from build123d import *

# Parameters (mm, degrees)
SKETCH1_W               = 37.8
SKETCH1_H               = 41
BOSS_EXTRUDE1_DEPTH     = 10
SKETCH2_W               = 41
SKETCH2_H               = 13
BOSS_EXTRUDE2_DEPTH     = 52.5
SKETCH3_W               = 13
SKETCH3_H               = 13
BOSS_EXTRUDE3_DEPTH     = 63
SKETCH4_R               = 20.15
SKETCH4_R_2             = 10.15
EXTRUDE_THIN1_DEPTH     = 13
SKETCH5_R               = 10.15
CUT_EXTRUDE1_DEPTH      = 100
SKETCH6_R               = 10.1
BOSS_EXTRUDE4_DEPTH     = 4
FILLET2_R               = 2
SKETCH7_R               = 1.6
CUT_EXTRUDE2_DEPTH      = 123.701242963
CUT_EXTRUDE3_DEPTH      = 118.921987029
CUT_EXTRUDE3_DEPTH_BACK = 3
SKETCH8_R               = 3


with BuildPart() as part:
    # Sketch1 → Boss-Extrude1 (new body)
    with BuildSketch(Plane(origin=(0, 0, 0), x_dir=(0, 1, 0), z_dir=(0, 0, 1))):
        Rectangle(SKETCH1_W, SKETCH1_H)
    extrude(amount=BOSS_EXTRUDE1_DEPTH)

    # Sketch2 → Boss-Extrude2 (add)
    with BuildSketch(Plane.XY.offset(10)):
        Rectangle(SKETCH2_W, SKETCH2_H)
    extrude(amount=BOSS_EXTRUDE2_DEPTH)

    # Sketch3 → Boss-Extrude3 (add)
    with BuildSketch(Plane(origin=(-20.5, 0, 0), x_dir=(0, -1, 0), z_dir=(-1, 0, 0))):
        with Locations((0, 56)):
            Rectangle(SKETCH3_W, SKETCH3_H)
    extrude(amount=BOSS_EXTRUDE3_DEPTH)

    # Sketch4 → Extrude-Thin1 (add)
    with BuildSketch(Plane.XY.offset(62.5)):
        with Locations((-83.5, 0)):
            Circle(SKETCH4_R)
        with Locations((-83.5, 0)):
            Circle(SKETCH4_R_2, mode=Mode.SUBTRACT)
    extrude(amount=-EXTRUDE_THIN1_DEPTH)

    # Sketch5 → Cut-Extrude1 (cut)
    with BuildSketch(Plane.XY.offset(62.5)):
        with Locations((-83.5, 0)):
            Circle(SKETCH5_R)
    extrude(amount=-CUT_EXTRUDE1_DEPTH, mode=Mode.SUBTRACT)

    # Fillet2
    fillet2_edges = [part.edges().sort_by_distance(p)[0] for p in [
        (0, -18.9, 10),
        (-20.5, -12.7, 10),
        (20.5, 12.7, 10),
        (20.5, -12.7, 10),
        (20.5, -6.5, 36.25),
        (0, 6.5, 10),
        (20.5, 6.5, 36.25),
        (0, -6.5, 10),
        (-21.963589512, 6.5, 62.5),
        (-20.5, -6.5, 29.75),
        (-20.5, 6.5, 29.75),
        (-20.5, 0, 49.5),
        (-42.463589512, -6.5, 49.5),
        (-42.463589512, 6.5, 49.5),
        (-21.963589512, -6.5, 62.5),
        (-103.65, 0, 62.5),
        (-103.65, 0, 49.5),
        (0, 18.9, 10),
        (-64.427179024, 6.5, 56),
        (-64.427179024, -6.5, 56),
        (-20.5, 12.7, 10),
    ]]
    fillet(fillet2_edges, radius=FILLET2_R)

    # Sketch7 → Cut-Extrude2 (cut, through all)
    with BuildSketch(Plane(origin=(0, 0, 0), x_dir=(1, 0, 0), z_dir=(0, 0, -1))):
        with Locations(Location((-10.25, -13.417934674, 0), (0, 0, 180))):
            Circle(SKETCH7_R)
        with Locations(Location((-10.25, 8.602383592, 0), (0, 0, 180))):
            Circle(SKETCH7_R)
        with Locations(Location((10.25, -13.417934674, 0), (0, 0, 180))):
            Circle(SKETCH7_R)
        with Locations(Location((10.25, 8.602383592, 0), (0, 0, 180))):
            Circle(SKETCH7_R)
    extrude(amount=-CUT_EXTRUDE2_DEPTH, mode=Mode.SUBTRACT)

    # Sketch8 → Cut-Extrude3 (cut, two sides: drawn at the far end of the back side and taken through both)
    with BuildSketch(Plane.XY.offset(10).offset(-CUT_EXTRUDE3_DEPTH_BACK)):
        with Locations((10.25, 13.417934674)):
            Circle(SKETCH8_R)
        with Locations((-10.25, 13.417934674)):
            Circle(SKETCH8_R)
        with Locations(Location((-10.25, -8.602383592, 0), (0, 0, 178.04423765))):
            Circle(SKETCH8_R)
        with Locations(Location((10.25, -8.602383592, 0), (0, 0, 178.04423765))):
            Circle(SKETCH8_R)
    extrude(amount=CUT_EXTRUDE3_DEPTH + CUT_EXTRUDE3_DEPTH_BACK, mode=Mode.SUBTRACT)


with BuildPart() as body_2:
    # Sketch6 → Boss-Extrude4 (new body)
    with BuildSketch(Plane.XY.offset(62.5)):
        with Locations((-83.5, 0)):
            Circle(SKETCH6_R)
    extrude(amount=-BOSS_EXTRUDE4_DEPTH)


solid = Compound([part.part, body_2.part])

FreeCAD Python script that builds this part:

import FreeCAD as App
import Part
import Sketcher

V = App.Vector


def edges_at(feature, points):
    """Names of the edges that pass closest to the given points."""
    edges = feature.Shape.Edges
    near = lambda p: min(range(len(edges)), key=lambda i: edges[i].distToShape(Part.Vertex(*p))[0])
    return sorted({f"Edge{near(p) + 1}" for p in points})


def add_polygon(sketch, points):
    """Adds a closed chain of lines whose ends are joined by coincident constraints."""
    first, n = sketch.GeometryCount, len(points)
    for a, b in zip(points, points[1:] + points[:1]):
        sketch.addGeometry(Part.LineSegment(App.Vector(*a, 0), App.Vector(*b, 0)), False)
    for i in range(n):
        sketch.addConstraint(Sketcher.Constraint("Coincident", first + i, 2, first + (i + 1) % n, 1))

doc = App.newDocument("Part")
body = doc.addObject("PartDesign::Body", "Body")

# Sketch on XY plane
sketch1 = body.newObject("Sketcher::SketchObject", "Sketch")
sketch1.AttachmentSupport = (doc.getObject("XY_Plane"), [""])
sketch1.MapMode = "FlatFace"
add_polygon(sketch1, [(-20, -19), (20, -19), (20, 19), (-20, 19)])  # lines 0-3
sketch1.addConstraint([
    Sketcher.Constraint("Horizontal", 0),
    Sketcher.Constraint("Vertical", 1),
    Sketcher.Constraint("Horizontal", 2),
    Sketcher.Constraint("Vertical", 3),
    Sketcher.Constraint("Symmetric", 0, 2, 2, 2, -1, 1),
    Sketcher.Constraint("DistanceX", 0, 1, 0, 2, 41.0),
    Sketcher.Constraint("DistanceY", 1, 1, 1, 2, 37.8),
])
pad1 = body.newObject("PartDesign::Pad", "Pad")
pad1.Profile = sketch1
pad1.Length = 10

# Sketch on XY plane
sketch2 = body.newObject("Sketcher::SketchObject", "Sketch001")
sketch2.AttachmentSupport = (doc.getObject("XY_Plane"), [""])
sketch2.MapMode = "FlatFace"
sketch2.AttachmentOffset = App.Placement(V(0, 0, 10), App.Rotation())
add_polygon(sketch2, [(-20, 6), (-20, -6), (20, -6), (20, 6)])  # lines 0-3
sketch2.addConstraint([
    Sketcher.Constraint("Vertical", 0),
    Sketcher.Constraint("Horizontal", 1),
    Sketcher.Constraint("Vertical", 2),
    Sketcher.Constraint("Horizontal", 3),
    Sketcher.Constraint("Symmetric", 0, 2, 2, 2, -1, 1),
    Sketcher.Constraint("DistanceX", 1, 1, 1, 2, 41.0),
    Sketcher.Constraint("DistanceY", 0, 2, 0, 1, 13.0),
])
pad2 = body.newObject("PartDesign::Pad", "Pad001")
pad2.Profile = sketch2
pad2.Length = 52.5

# Sketch on YZ plane
sketch3 = body.newObject("Sketcher::SketchObject", "Sketch002")
sketch3.AttachmentSupport = (doc.getObject("YZ_Plane"), [""])
sketch3.MapMode = "FlatFace"
sketch3.AttachmentOffset = App.Placement(V(0, 0, -20.5), App.Rotation())
add_polygon(sketch3, [(6, 62), (6, 50), (-6, 50), (-6, 62)])  # lines 0-3
sketch3.addConstraint([
    Sketcher.Constraint("Vertical", 0),
    Sketcher.Constraint("Horizontal", 1),
    Sketcher.Constraint("Vertical", 2),
    Sketcher.Constraint("Horizontal", 3),
    Sketcher.Constraint("Equal", 3, 0),
    Sketcher.Constraint("DistanceX", 1, 2, 1, 1, 13.0),
    Sketcher.Constraint("DistanceX", -1, 1, 0, 2, 6.5),
    Sketcher.Constraint("DistanceY", -1, 1, 0, 2, 49.5),
])
pad3 = body.newObject("PartDesign::Pad", "Pad002")
pad3.Profile = sketch3
pad3.Length = 63
pad3.Reversed = True

# Sketch on XY plane
sketch4 = body.newObject("Sketcher::SketchObject", "Sketch003")
sketch4.AttachmentSupport = (doc.getObject("XY_Plane"), [""])
sketch4.MapMode = "FlatFace"
sketch4.AttachmentOffset = App.Placement(V(0, 0, 62.5), App.Rotation())
sketch4.addGeometry([
    Part.Circle(V(-84, 0, 0), V(0, 0, 1), 20),
    Part.Circle(V(-84, 0, 0), V(0, 0, 1), 10),
], False)
sketch4.addConstraint([
    Sketcher.Constraint("Coincident", 1, 3, 0, 3),
    Sketcher.Constraint("PointOnObject", 0, 3, -1),
    Sketcher.Constraint("Diameter", 0, 40.3),
    Sketcher.Constraint("Diameter", 1, 20.3),
    Sketcher.Constraint("DistanceX", 0, 3, -1, 1, 83.5),
])
pad4 = body.newObject("PartDesign::Pad", "Pad003")
pad4.Profile = sketch4
pad4.Length = 13
pad4.Reversed = True

# Sketch on XY plane
sketch5 = body.newObject("Sketcher::SketchObject", "Sketch004")
sketch5.AttachmentSupport = (doc.getObject("XY_Plane"), [""])
sketch5.MapMode = "FlatFace"
sketch5.AttachmentOffset = App.Placement(V(0, 0, 62.5), App.Rotation())
sketch5.addGeometry(Part.Circle(V(-84, 0, 0), V(0, 0, 1), 10), False)
sketch5.addConstraint([
    Sketcher.Constraint("PointOnObject", 0, 3, -1),
    Sketcher.Constraint("Diameter", 0, 20.3),
    Sketcher.Constraint("DistanceX", 0, 3, -1, 1, 83.5),
])
pocket1 = body.newObject("PartDesign::Pocket", "Pocket")
pocket1.Profile = sketch5
pocket1.Length = 100
doc.recompute()

fillet = body.newObject("PartDesign::Fillet", "Fillet")
fillet.Base = (pocket1, edges_at(pocket1, [
    (0, -18.9, 10),
    (-20.5, -12.7, 10),
    (20.5, 12.7, 10),
    (20.5, -12.7, 10),
    (20.5, -6.5, 36.25),
    (0, 6.5, 10),
    (20.5, 6.5, 36.25),
    (0, -6.5, 10),
    (-21.964, 6.5, 62.5),
    (-20.5, -6.5, 29.75),
    (-20.5, 6.5, 29.75),
    (-20.5, 0, 49.5),
    (-42.464, -6.5, 49.5),
    (-42.464, 6.5, 49.5),
    (-21.964, -6.5, 62.5),
    (-103.65, 0, 62.5),
    (-103.65, 0, 49.5),
    (0, 18.9, 10),
    (-64.427, 6.5, 56),
    (-64.427, -6.5, 56),
    (-20.5, 12.7, 10),
]))
fillet.Radius = 2

# Sketch on XY plane
sketch6 = body.newObject("Sketcher::SketchObject", "Sketch005")
sketch6.AttachmentSupport = (doc.getObject("XY_Plane"), [""])
sketch6.MapMode = "FlatFace"
sketch6.addGeometry([
    Part.Circle(V(-10.2, 13.4, 0), V(0, 0, 1), 1.6),
    Part.Circle(V(-10.2, -8.6, 0), V(0, 0, 1), 1.6),
    Part.Circle(V(10.2, 13.4, 0), V(0, 0, 1), 1.6),
    Part.Circle(V(10.2, -8.6, 0), V(0, 0, 1), 1.6),
], False)
sketch6.addConstraint([
    Sketcher.Constraint("Equal", 0, 1),
    Sketcher.Constraint("Equal", 1, 2),
    Sketcher.Constraint("Equal", 2, 3),
    Sketcher.Constraint("Symmetric", 0, 3, 2, 3, -2),
    Sketcher.Constraint("Symmetric", 1, 3, 3, 3, -2),
    Sketcher.Constraint("Vertical", 0, 3, 1, 3),
    Sketcher.Constraint("Diameter", 0, 3.2),
    Sketcher.Constraint("DistanceX", 0, 3, 2, 3, 20.5),
    Sketcher.Constraint("DistanceY", 1, 3, 0, 3, 22.020318),
    Sketcher.Constraint("DistanceY", -1, 1, 0, 3, 13.417935),
])
pocket2 = body.newObject("PartDesign::Pocket", "Pocket001")
pocket2.Profile = sketch6
pocket2.Type = "ThroughAll"
pocket2.Reversed = True

# Sketch on XY plane
sketch7 = body.newObject("Sketcher::SketchObject", "Sketch006")
sketch7.AttachmentSupport = (doc.getObject("XY_Plane"), [""])
sketch7.MapMode = "FlatFace"
sketch7.AttachmentOffset = App.Placement(V(0, 0, 10), App.Rotation())
sketch7.addGeometry([
    Part.Circle(V(10.2, 13.4, 0), V(0, 0, 1), 3),
    Part.Circle(V(-10.2, 13.4, 0), V(0, 0, 1), 3),
    Part.Circle(V(-10.2, -8.6, 0), V(0, 0, 1), 3),
    Part.Circle(V(10.2, -8.6, 0), V(0, 0, 1), 3),
], False)
sketch7.addConstraint([
    Sketcher.Constraint("Equal", 0, 1),
    Sketcher.Constraint("Equal", 1, 2),
    Sketcher.Constraint("Equal", 2, 3),
    Sketcher.Constraint("Symmetric", 0, 3, 1, 3, -2),
    Sketcher.Constraint("Symmetric", 2, 3, 3, 3, -2),
    Sketcher.Constraint("Vertical", 1, 3, 2, 3),
    Sketcher.Constraint("Diameter", 0, 6.0),
    Sketcher.Constraint("DistanceX", 1, 3, 0, 3, 20.5),
    Sketcher.Constraint("DistanceY", 2, 3, 1, 3, 22.020318),
    Sketcher.Constraint("DistanceY", -1, 1, 0, 3, 13.417935),
])
pocket3 = body.newObject("PartDesign::Pocket", "Pocket002")
pocket3.Profile = sketch7
pocket3.Type = "TwoLengths"
pocket3.Length = 118.921987
pocket3.Length2 = 3
pocket3.Reversed = True
body2 = doc.addObject("PartDesign::Body", "Body001")

# Sketch on XY plane
sketch8 = body2.newObject("Sketcher::SketchObject", "Sketch007")
sketch8.AttachmentSupport = (doc.getObject("XY_Plane001"), [""])
sketch8.MapMode = "FlatFace"
sketch8.AttachmentOffset = App.Placement(V(0, 0, 62.5), App.Rotation())
sketch8.addGeometry(Part.Circle(V(-84, 0, 0), V(0, 0, 1), 10), False)
sketch8.addConstraint([
    Sketcher.Constraint("PointOnObject", 0, 3, -1),
    Sketcher.Constraint("Diameter", 0, 20.2),
    Sketcher.Constraint("DistanceX", 0, 3, -1, 1, 83.5),
])
pad5 = body2.newObject("PartDesign::Pad", "Pad004")
pad5.Profile = sketch8
pad5.Length = 4
pad5.Reversed = True

doc.recompute()
